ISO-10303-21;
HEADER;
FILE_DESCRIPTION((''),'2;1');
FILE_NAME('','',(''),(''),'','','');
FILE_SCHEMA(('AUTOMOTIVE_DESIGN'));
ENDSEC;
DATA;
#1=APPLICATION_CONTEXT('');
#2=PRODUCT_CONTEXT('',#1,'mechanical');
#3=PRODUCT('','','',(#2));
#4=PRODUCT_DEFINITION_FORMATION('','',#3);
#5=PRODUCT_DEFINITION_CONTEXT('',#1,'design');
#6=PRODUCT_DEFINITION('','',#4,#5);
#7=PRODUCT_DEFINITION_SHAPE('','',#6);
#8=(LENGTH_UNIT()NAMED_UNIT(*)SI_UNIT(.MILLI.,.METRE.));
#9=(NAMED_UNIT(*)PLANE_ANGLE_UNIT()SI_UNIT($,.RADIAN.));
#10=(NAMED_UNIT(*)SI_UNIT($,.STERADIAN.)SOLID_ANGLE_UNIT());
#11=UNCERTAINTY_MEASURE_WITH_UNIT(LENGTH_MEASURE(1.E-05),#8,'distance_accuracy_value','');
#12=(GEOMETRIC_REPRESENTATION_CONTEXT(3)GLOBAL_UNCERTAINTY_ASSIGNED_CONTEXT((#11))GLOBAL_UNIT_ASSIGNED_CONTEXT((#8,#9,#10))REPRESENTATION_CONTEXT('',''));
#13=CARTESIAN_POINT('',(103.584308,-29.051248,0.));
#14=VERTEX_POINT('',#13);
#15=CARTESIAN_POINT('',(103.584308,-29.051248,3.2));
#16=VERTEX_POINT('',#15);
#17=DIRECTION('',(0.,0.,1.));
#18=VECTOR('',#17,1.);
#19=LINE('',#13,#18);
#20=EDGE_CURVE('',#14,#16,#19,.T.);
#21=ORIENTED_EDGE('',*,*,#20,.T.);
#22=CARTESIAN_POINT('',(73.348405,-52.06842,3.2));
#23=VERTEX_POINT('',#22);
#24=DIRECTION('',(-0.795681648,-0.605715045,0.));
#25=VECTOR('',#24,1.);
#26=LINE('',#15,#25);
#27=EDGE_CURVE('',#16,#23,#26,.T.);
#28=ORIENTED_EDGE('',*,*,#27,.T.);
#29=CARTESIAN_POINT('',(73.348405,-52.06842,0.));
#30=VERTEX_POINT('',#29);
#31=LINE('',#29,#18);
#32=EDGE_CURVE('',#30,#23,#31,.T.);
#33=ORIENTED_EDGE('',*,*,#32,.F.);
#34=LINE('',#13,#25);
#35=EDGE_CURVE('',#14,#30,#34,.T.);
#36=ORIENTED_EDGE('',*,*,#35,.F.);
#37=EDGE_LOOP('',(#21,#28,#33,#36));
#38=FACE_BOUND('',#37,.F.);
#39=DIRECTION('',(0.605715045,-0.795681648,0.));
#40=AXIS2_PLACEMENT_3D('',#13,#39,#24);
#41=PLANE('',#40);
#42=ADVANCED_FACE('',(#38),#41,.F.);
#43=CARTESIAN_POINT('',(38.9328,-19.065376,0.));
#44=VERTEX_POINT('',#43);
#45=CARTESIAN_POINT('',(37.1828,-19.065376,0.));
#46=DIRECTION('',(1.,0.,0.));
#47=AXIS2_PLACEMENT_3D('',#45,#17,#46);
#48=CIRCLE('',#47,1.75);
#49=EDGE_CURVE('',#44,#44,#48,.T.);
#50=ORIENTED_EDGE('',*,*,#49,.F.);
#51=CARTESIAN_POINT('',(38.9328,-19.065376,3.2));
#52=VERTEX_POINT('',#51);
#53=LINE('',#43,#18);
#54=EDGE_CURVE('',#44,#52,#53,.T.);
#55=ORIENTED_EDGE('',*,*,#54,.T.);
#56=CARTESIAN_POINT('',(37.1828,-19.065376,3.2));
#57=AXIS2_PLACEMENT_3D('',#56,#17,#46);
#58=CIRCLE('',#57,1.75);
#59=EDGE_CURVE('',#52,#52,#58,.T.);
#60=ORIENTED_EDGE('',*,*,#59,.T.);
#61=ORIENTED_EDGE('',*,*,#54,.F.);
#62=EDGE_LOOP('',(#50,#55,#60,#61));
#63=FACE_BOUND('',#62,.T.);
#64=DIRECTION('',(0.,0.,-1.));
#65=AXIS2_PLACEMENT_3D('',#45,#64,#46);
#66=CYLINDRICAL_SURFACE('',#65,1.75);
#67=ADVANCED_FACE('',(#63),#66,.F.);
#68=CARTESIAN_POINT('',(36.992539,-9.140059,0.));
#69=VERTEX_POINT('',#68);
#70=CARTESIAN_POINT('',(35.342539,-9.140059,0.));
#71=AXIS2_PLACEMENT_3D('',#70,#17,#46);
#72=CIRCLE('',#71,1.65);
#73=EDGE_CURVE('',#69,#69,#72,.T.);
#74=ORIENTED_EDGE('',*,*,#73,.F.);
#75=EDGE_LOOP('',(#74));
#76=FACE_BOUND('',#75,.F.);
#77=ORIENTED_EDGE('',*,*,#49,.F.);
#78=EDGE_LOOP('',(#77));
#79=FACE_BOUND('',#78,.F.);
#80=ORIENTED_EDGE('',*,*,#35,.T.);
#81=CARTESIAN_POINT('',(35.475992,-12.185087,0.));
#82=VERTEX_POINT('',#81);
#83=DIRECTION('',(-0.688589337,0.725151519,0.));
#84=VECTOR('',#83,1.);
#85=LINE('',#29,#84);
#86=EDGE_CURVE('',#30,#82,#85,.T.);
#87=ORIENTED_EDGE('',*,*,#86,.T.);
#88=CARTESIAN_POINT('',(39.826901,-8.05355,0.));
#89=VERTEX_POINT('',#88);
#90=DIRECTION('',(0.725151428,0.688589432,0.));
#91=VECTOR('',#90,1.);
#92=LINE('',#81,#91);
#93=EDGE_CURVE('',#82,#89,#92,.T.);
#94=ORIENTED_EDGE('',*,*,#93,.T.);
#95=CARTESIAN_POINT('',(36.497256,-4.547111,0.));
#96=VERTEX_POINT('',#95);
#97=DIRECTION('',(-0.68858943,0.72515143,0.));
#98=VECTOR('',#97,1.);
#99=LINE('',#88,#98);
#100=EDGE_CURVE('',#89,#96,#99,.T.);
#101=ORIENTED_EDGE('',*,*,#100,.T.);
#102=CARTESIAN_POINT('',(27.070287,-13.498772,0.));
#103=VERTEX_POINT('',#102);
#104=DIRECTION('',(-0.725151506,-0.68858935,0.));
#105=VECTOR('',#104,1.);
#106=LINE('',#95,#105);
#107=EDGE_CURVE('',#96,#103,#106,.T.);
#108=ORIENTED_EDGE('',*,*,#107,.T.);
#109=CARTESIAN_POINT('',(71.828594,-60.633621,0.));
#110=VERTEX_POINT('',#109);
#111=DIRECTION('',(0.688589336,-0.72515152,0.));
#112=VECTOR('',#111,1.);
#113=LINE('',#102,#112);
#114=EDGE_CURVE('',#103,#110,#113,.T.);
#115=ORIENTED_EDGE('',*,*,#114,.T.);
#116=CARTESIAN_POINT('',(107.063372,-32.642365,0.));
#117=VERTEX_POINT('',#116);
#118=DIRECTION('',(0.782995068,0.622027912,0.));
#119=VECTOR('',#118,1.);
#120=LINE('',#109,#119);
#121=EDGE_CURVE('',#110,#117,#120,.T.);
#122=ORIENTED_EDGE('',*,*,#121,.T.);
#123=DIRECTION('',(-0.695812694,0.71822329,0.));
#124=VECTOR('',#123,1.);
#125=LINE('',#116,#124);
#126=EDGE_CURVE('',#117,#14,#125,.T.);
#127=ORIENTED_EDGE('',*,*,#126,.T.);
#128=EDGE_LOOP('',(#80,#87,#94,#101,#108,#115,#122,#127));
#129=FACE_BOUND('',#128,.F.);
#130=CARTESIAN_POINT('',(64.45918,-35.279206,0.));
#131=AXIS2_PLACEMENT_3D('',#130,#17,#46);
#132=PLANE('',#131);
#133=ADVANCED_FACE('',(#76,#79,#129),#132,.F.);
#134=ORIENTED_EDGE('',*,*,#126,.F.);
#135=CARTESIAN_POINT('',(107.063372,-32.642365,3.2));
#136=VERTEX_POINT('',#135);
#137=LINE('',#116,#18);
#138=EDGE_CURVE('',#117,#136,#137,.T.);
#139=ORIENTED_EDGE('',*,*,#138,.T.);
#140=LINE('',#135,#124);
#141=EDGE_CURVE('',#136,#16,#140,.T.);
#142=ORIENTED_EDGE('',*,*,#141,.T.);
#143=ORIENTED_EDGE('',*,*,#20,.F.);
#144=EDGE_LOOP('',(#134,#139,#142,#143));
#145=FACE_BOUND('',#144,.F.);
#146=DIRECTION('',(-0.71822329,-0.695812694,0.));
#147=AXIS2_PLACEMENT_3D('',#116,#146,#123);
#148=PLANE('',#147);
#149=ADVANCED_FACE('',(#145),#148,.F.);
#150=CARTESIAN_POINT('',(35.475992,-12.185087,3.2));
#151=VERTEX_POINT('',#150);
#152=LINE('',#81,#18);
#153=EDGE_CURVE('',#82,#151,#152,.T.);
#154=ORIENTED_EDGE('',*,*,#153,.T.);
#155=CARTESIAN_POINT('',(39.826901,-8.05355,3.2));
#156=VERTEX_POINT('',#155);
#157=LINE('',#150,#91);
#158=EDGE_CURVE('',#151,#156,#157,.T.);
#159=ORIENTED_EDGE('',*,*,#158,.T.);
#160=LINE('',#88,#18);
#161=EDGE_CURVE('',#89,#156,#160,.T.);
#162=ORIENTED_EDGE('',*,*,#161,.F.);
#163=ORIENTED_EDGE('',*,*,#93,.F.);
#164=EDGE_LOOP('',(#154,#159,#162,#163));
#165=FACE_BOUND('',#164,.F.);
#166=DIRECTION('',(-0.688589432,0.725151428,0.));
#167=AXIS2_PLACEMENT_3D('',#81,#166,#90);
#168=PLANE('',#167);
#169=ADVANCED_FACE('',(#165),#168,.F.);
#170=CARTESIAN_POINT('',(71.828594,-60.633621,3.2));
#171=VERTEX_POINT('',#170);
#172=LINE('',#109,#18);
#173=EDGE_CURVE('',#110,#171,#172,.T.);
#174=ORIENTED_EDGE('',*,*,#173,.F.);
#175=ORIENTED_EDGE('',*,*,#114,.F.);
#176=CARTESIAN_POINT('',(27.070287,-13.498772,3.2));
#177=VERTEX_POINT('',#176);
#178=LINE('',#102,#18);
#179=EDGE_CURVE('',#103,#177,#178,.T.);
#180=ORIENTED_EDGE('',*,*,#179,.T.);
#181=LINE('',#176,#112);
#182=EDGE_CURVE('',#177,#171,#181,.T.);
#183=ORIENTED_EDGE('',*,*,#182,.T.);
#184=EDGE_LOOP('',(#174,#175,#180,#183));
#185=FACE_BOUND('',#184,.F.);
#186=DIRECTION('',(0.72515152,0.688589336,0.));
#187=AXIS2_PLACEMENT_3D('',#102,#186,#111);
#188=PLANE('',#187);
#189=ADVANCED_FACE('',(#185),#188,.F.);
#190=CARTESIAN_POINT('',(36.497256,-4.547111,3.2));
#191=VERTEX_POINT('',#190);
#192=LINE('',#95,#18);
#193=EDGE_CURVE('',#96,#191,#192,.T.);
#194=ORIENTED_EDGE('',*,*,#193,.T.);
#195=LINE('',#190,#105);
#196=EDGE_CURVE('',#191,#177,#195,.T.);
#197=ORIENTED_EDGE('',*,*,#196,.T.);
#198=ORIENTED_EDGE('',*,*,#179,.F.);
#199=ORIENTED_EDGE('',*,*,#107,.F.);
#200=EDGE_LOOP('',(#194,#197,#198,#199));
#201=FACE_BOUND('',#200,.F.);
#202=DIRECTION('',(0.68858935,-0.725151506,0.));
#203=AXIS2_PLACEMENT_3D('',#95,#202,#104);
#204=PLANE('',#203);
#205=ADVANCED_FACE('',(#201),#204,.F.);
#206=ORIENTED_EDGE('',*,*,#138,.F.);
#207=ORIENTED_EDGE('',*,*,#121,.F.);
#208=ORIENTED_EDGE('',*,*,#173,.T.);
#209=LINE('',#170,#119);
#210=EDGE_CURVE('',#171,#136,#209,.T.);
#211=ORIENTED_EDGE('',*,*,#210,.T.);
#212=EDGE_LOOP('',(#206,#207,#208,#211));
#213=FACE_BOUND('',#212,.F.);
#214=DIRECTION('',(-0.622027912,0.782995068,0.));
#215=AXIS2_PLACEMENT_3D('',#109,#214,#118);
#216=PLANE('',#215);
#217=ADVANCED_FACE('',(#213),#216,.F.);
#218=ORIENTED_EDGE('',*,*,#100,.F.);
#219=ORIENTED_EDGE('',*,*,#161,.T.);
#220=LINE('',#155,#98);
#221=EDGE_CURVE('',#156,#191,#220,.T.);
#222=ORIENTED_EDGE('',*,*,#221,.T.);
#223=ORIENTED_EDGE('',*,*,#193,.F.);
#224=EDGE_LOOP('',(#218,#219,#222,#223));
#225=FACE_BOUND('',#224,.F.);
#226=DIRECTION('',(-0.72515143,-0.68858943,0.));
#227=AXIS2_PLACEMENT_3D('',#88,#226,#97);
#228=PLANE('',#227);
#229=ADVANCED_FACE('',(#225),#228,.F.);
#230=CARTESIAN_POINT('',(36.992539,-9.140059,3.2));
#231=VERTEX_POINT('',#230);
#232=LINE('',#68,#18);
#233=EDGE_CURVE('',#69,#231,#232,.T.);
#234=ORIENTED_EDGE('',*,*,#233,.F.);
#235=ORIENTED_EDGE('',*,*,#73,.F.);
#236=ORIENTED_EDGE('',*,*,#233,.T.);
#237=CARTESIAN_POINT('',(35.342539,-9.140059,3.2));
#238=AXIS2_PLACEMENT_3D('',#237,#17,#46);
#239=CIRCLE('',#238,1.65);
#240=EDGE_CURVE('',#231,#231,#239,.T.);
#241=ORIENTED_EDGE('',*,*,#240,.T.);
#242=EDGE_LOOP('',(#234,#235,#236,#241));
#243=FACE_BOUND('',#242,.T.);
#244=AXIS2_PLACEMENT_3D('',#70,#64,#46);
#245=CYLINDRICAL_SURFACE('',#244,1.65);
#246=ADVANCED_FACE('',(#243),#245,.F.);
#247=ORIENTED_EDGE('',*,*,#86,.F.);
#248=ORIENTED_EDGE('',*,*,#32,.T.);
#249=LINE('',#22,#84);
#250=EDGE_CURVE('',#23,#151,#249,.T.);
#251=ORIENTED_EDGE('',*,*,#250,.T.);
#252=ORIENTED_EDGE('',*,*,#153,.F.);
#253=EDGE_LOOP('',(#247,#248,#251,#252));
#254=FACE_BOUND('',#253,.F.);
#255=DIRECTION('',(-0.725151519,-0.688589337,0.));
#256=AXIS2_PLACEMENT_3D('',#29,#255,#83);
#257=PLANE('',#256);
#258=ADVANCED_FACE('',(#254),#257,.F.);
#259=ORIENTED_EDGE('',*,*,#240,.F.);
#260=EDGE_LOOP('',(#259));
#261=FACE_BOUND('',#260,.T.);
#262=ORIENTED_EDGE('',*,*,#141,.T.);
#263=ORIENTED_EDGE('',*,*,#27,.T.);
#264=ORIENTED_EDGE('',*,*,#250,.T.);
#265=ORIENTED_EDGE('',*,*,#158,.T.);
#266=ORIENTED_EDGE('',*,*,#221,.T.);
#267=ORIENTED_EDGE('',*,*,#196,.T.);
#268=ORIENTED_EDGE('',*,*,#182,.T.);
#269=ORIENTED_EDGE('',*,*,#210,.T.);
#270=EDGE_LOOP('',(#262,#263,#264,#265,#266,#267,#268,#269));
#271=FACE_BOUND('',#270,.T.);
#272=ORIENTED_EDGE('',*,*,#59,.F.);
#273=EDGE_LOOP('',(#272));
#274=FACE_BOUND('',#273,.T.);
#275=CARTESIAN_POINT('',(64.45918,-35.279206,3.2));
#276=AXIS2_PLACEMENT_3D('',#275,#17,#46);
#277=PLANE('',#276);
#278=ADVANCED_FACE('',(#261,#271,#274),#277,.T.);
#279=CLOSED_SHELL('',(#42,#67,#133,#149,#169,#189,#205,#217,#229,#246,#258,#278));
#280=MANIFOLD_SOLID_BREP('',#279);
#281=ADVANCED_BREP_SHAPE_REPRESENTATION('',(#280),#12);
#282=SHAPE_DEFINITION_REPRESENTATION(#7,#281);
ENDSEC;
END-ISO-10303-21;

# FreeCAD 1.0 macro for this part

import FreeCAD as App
import Part
import Sketcher

V = App.Vector
Q = App.Units.Quantity

doc = App.newDocument("Part")
body = doc.addObject("PartDesign::Body", "Body")

# Sketch on XY plane
sketch1 = body.newObject("Sketcher::SketchObject", "Sketch")
sketch1.AttachmentSupport = (doc.getObject("XY_Plane"), [""])
sketch1.MapMode = "FlatFace"
sketch1.addGeometry(Part.LineSegment(V(71.8, -60.6, 0), V(107.1, -32.6, 0)), False)
sketch1.addGeometry(Part.LineSegment(V(107.1, -32.6, 0), V(103.6, -29.1, 0)), False)
sketch1.addGeometry(Part.LineSegment(V(103.6, -29.1, 0), V(73.3, -52.1, 0)), False)
sketch1.addGeometry(Part.LineSegment(V(73.3, -52.1, 0), V(35.5, -12.2, 0)), False)
sketch1.addGeometry(Part.LineSegment(V(35.5, -12.2, 0), V(39.8, -8.1, 0)), False)
sketch1.addGeometry(Part.LineSegment(V(39.8, -8.1, 0), V(36.5, -4.5, 0)), False)
sketch1.addGeometry(Part.LineSegment(V(36.5, -4.5, 0), V(27.1, -13.5, 0)), False)
sketch1.addGeometry(Part.LineSegment(V(27.1, -13.5, 0), V(71.8, -60.6, 0)), False)
sketch1.addGeometry(Part.Circle(V(37.2, -19.1, 0), V(0, 0, 1), 1.8), False)
sketch1.addGeometry(Part.Circle(V(35.3, -9.1, 0), V(0, 0, 1), 1.6), False)
sketch1.addConstraint(Sketcher.Constraint("Coincident", 0, 2, 1, 1))
sketch1.addConstraint(Sketcher.Constraint("Coincident", 1, 2, 2, 1))
sketch1.addConstraint(Sketcher.Constraint("Coincident", 2, 2, 3, 1))
sketch1.addConstraint(Sketcher.Constraint("Coincident", 3, 2, 4, 1))
sketch1.addConstraint(Sketcher.Constraint("Coincident", 4, 2, 5, 1))
sketch1.addConstraint(Sketcher.Constraint("Coincident", 5, 2, 6, 1))
sketch1.addConstraint(Sketcher.Constraint("Coincident", 6, 2, 7, 1))
sketch1.addConstraint(Sketcher.Constraint("Coincident", 7, 2, 0, 1))
sketch1.addConstraint(Sketcher.Constraint("Perpendicular", 3, 4))
sketch1.addConstraint(Sketcher.Constraint("Perpendicular", 4, 5))
sketch1.addConstraint(Sketcher.Constraint("Perpendicular", 5, 6))
sketch1.addConstraint(Sketcher.Constraint("Perpendicular", 6, 7))
sketch1.addConstraint(Sketcher.Constraint("Diameter", 8, Q("3.5 mm")))
sketch1.addConstraint(Sketcher.Constraint("Diameter", 9, Q("3.3 mm")))
sketch1.addConstraint(Sketcher.Constraint("Distance", 0, Q("45 mm")))
sketch1.addConstraint(Sketcher.Constraint("Distance", 1, Q("5.000001 mm")))
sketch1.addConstraint(Sketcher.Constraint("Distance", 2, Q("38 mm")))
sketch1.addConstraint(Sketcher.Constraint("Distance", 3, Q("54.999999 mm")))
sketch1.addConstraint(Sketcher.Constraint("Distance", 4, Q("6.000001 mm")))
sketch1.addConstraint(Sketcher.Constraint("Distance", 6, Q("12.999999 mm")))
sketch1.addConstraint(Sketcher.Constraint("Distance", 7, Q("65 mm")))
sketch1.addConstraint(Sketcher.Constraint("DistanceX", -1, 1, 8, 3, Q("37.1828 mm")))
sketch1.addConstraint(Sketcher.Constraint("DistanceX", -1, 1, 4, 2, Q("39.826901 mm")))
sketch1.addConstraint(Sketcher.Constraint("DistanceY", 1, 2, 4, 2, Q("20.997698 mm")))
sketch1.addConstraint(Sketcher.Constraint("DistanceY", 7, 2, 2, 2, Q("8.565201 mm")))
sketch1.addConstraint(Sketcher.Constraint("DistanceX", 3, 2, 7, 2, Q("36.352602 mm")))
sketch1.addConstraint(Sketcher.Constraint("DistanceX", -1, 1, 9, 3, Q("35.342539 mm")))
sketch1.addConstraint(Sketcher.Constraint("DistanceY", 9, 3, -1, 1, Q("9.140059 mm")))
sketch1.addConstraint(Sketcher.Constraint("DistanceY", 1, 2, -1, 1, Q("29.051248 mm")))
sketch1.addConstraint(Sketcher.Constraint("DistanceY", 0, 2, 8, 3, Q("13.576989 mm")))
pad1 = body.newObject("PartDesign::Pad", "Pad")
pad1.Profile = sketch1
pad1.Length = 3.2

doc.recompute()
